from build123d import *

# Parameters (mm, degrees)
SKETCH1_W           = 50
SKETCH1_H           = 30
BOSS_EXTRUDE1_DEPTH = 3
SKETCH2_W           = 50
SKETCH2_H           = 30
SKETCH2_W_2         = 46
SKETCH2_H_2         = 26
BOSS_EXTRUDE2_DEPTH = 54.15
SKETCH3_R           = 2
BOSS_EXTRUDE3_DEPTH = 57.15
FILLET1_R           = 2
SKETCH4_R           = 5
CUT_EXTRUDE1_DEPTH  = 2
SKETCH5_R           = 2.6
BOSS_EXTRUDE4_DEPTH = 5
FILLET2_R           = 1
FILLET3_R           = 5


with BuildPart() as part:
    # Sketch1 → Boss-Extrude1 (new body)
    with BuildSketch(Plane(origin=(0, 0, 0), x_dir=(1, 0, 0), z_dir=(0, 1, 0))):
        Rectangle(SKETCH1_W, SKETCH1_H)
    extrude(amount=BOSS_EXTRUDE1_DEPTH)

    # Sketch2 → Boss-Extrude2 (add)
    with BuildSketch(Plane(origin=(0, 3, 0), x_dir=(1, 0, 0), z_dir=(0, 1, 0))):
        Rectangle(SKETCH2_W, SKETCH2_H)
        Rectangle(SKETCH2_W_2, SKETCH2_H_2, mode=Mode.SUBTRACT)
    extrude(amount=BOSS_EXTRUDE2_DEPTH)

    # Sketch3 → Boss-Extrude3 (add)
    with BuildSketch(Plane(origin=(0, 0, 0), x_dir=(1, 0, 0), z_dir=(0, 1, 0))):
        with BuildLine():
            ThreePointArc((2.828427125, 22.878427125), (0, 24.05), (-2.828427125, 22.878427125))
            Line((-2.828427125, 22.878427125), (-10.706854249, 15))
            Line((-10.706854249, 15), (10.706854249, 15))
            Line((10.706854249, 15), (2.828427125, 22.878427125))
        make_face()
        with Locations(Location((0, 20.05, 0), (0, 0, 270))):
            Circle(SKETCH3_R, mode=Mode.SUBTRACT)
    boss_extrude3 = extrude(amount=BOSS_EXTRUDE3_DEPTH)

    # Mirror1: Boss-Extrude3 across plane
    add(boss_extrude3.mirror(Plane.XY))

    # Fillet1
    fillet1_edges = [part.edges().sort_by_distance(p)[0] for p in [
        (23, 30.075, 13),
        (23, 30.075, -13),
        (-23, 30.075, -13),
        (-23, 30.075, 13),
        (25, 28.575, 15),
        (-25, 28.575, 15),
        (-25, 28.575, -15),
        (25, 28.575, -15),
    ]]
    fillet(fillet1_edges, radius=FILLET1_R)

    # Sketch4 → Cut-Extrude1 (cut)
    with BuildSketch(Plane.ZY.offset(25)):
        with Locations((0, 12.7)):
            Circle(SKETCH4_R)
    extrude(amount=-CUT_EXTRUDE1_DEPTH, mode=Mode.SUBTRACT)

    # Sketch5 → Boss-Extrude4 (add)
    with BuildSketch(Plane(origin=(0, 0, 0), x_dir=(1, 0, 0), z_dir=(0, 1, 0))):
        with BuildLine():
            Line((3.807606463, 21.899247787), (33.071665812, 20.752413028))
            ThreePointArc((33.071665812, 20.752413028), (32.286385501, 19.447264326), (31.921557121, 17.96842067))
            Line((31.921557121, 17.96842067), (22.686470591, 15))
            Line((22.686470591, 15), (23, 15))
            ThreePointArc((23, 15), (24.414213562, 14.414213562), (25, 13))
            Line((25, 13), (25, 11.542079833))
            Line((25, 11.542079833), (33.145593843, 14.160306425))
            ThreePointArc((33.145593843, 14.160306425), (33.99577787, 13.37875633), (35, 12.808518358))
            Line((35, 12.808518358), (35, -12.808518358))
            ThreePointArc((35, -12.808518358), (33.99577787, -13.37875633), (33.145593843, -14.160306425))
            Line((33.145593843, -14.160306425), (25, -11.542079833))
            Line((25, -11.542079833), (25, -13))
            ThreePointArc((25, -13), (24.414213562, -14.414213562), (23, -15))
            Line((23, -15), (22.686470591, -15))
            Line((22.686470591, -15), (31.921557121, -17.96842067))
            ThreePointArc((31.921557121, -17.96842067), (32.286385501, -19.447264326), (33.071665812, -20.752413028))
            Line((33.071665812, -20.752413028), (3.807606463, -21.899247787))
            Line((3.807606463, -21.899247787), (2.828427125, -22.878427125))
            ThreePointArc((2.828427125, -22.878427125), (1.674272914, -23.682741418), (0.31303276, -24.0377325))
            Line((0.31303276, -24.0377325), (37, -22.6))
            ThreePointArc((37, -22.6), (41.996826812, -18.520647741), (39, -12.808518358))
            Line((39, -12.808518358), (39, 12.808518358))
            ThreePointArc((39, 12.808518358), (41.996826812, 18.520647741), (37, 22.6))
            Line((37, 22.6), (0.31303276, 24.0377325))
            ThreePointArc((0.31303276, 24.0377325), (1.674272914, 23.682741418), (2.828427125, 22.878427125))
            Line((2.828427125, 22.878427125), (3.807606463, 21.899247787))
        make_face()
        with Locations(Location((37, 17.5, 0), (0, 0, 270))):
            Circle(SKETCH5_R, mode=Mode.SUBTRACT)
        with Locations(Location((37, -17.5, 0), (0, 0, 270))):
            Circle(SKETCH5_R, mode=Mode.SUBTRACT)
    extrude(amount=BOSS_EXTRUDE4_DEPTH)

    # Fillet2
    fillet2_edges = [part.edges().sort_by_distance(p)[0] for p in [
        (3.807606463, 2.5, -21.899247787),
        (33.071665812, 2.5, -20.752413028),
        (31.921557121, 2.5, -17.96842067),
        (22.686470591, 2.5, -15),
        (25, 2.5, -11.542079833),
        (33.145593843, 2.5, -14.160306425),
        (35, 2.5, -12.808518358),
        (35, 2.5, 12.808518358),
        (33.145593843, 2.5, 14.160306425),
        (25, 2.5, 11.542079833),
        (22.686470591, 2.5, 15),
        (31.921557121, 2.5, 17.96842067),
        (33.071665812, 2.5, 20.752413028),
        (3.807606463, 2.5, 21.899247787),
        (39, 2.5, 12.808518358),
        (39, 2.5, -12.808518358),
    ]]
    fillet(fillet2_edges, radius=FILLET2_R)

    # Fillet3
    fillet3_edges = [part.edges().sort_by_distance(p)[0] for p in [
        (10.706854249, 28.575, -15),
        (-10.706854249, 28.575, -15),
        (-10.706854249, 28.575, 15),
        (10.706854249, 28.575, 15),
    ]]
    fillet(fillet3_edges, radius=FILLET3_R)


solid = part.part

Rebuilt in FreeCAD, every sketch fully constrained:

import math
import FreeCAD as App
import Part
import Sketcher
Q = App.Units.Quantity


def edges_at(feature, points):
    """Names of the edges that pass closest to the given points."""
    edges = feature.Shape.Edges
    near = lambda p: min(range(len(edges)), key=lambda i: edges[i].distToShape(Part.Vertex(*p))[0])
    return sorted({f"Edge{near(p) + 1}" for p in points})


def add_polygon(sketch, points):
    """Adds a closed chain of lines whose ends are joined by coincident constraints."""
    first, n = sketch.GeometryCount, len(points)
    for a, b in zip(points, points[1:] + points[:1]):
        sketch.addGeometry(Part.LineSegment(App.Vector(*a, 0), App.Vector(*b, 0)), False)
    for i in range(n):
        sketch.addConstraint(Sketcher.Constraint("Coincident", first + i, 2, first + (i + 1) % n, 1))

doc = App.newDocument("Part")
body = doc.addObject("PartDesign::Body", "Body")

# Sketch on XZ plane
sketch1 = body.newObject("Sketcher::SketchObject", "Sketch")
sketch1.AttachmentSupport = (doc.getObject("XZ_Plane"), [""])
sketch1.MapMode = "FlatFace"
add_polygon(sketch1, [(-25, -15), (-25, 15), (25, 15), (25, -15)])  # lines 0-3
sketch1.addConstraint([
    Sketcher.Constraint("Vertical", 0),
    Sketcher.Constraint("Horizontal", 1),
    Sketcher.Constraint("Vertical", 2),
    Sketcher.Constraint("Horizontal", 3),
    Sketcher.Constraint("Symmetric", 0, 2, 2, 2, -1, 1),
    Sketcher.Constraint("DistanceX", 1, 1, 1, 2, Q("50 mm")),
    Sketcher.Constraint("DistanceY", 0, 1, 0, 2, Q("30 mm")),
])
pad1 = body.newObject("PartDesign::Pad", "Pad")
pad1.Profile = sketch1
pad1.Length = 3
pad1.Reversed = True

# Sketch on XZ plane
sketch2 = body.newObject("Sketcher::SketchObject", "Sketch001")
sketch2.AttachmentSupport = (doc.getObject("XZ_Plane"), [""])
sketch2.MapMode = "FlatFace"
sketch2.AttachmentOffset = App.Placement(App.Vector(0, 0, -3), App.Rotation())
add_polygon(sketch2, [(-25, -15), (-25, 15), (25, 15), (25, -15)])  # lines 0-3
add_polygon(sketch2, [(23, 13), (-23, 13), (-23, -13), (23, -13)])  # lines 4-7
sketch2.addConstraint([
    Sketcher.Constraint("Vertical", 0),
    Sketcher.Constraint("Horizontal", 1),
    Sketcher.Constraint("Vertical", 2),
    Sketcher.Constraint("Horizontal", 3),
    Sketcher.Constraint("Horizontal", 4),
    Sketcher.Constraint("Vertical", 5),
    Sketcher.Constraint("Horizontal", 6),
    Sketcher.Constraint("Vertical", 7),
    Sketcher.Constraint("Symmetric", 0, 2, 2, 2, -1, 1),
    Sketcher.Constraint("Symmetric", 4, 2, 6, 2, -1, 1),
    Sketcher.Constraint("DistanceX", 1, 1, 1, 2, Q("50 mm")),
    Sketcher.Constraint("DistanceX", 4, 2, 4, 1, Q("46 mm")),
    Sketcher.Constraint("DistanceY", 0, 1, 0, 2, Q("30 mm")),
    Sketcher.Constraint("DistanceY", 5, 2, 5, 1, Q("26 mm")),
])
pad2 = body.newObject("PartDesign::Pad", "Pad001")
pad2.Profile = sketch2
pad2.Length = 54.15
pad2.Reversed = True

# Sketch on XZ plane
sketch3 = body.newObject("Sketcher::SketchObject", "Sketch002")
sketch3.AttachmentSupport = (doc.getObject("XZ_Plane"), [""])
sketch3.MapMode = "FlatFace"
sketch3.addGeometry([
    Part.ArcOfCircle(Part.Circle(App.Vector(0, -20, 0), App.Vector(0, 0, 1), 4), math.radians(-135), math.radians(-45)),  # 0
    Part.LineSegment(App.Vector(-2.8, -22.9, 0), App.Vector(-10.7, -15, 0)),  # 1
    Part.LineSegment(App.Vector(-10.7, -15, 0), App.Vector(10.7, -15, 0)),  # 2
    Part.LineSegment(App.Vector(10.7, -15, 0), App.Vector(2.8, -22.9, 0)),  # 3
    Part.Circle(App.Vector(0, -20.1, 0), App.Vector(0, 0, 1), 2),  # 4
], False)
sketch3.addConstraint([
    Sketcher.Constraint("Tangent", 0, 1, 1, 1),
    Sketcher.Constraint("Coincident", 1, 2, 2, 1),
    Sketcher.Constraint("Coincident", 2, 2, 3, 1),
    Sketcher.Constraint("Tangent", 3, 2, 0, 2),
    Sketcher.Constraint("Horizontal", 2),
    Sketcher.Constraint("Coincident", 4, 3, 0, 3),
    Sketcher.Constraint("Symmetric", 0, 1, 3, 2, -2),
    Sketcher.Constraint("Perpendicular", 1, 3),
    Sketcher.Constraint("Diameter", 4, Q("4 mm")),
    Sketcher.Constraint("Radius", 0, Q("4 mm")),
    Sketcher.Constraint("DistanceY", 1, 2, -1, 1, Q("15 mm")),
    Sketcher.Constraint("DistanceY", 0, 3, -1, 1, Q("20.05 mm")),
])
pad3 = body.newObject("PartDesign::Pad", "Pad002")
pad3.Profile = sketch3
pad3.Length = 57.15
pad3.Reversed = True
doc.recompute()

mirrored = body.newObject("PartDesign::Mirrored", "Mirrored")
mirrored.Originals = [pad3]
mirrored.MirrorPlane = (doc.getObject("XY_Plane"), [""])
body.Tip = mirrored
doc.recompute()

fillet = body.newObject("PartDesign::Fillet", "Fillet")
fillet.Base = (mirrored, edges_at(mirrored, [
    (23, 30.075, 13),
    (23, 30.075, -13),
    (-23, 30.075, -13),
    (-23, 30.075, 13),
    (25, 28.575, 15),
    (-25, 28.575, 15),
    (-25, 28.575, -15),
    (25, 28.575, -15),
]))
fillet.Radius = 2

# Sketch on YZ plane
sketch4 = body.newObject("Sketcher::SketchObject", "Sketch003")
sketch4.AttachmentSupport = (doc.getObject("YZ_Plane"), [""])
sketch4.MapMode = "FlatFace"
sketch4.AttachmentOffset = App.Placement(App.Vector(0, 0, -25), App.Rotation())
sketch4.addGeometry(Part.Circle(App.Vector(13, 0, 0), App.Vector(0, 0, 1), 5), False)
sketch4.addConstraint([
    Sketcher.Constraint("PointOnObject", 0, 3, -1),
    Sketcher.Constraint("Diameter", 0, Q("10 mm")),
    Sketcher.Constraint("DistanceX", -1, 1, 0, 3, Q("12.7 mm")),
])
pocket1 = body.newObject("PartDesign::Pocket", "Pocket")
pocket1.Profile = sketch4
pocket1.Length = 2
pocket1.Reversed = True

# Sketch on XZ plane
sketch5 = body.newObject("Sketcher::SketchObject", "Sketch004")
sketch5.AttachmentSupport = (doc.getObject("XZ_Plane"), [""])
sketch5.MapMode = "FlatFace"
sketch5.addGeometry([
    Part.LineSegment(App.Vector(3.81, -21.9, 0), App.Vector(33.07, -20.75, 0)),  # 0
    Part.ArcOfCircle(Part.Circle(App.Vector(37, -17.5, 0), App.Vector(0, 0, 1), 5.1), math.radians(-175), math.radians(-140)),  # 1
    Part.LineSegment(App.Vector(31.92, -17.97, 0), App.Vector(22.69, -15, 0)),  # 2
    Part.LineSegment(App.Vector(22.69, -15, 0), App.Vector(23, -15, 0)),  # 3
    Part.ArcOfCircle(Part.Circle(App.Vector(23, -13, 0), App.Vector(0, 0, 1), 2), math.radians(-90), math.radians(0)),  # 4
    Part.LineSegment(App.Vector(25, -13, 0), App.Vector(25, -11.54, 0)),  # 5
    Part.LineSegment(App.Vector(25, -11.54, 0), App.Vector(33.15, -14.16, 0)),  # 6
    Part.ArcOfCircle(Part.Circle(App.Vector(37, -17.5, 0), App.Vector(0, 0, 1), 5.1), math.radians(113), math.radians(139)),  # 7
    Part.LineSegment(App.Vector(35, -12.81, 0), App.Vector(35, 12.81, 0)),  # 8
    Part.ArcOfCircle(Part.Circle(App.Vector(37, 17.5, 0), App.Vector(0, 0, 1), 5.1), math.radians(-139), math.radians(-113)),  # 9
    Part.LineSegment(App.Vector(33.15, 14.16, 0), App.Vector(25, 11.54, 0)),  # 10
    Part.LineSegment(App.Vector(25, 11.54, 0), App.Vector(25, 13, 0)),  # 11
    Part.ArcOfCircle(Part.Circle(App.Vector(23, 13, 0), App.Vector(0, 0, 1), 2), math.radians(0), math.radians(90)),  # 12
    Part.LineSegment(App.Vector(23, 15, 0), App.Vector(22.69, 15, 0)),  # 13
    Part.LineSegment(App.Vector(22.69, 15, 0), App.Vector(31.92, 17.97, 0)),  # 14
    Part.ArcOfCircle(Part.Circle(App.Vector(37, 17.5, 0), App.Vector(0, 0, 1), 5.1), math.radians(140), math.radians(175)),  # 15
    Part.LineSegment(App.Vector(33.07, 20.75, 0), App.Vector(3.81, 21.9, 0)),  # 16
    Part.LineSegment(App.Vector(3.81, 21.9, 0), App.Vector(2.83, 22.88, 0)),  # 17
    Part.ArcOfCircle(Part.Circle(App.Vector(0, 20.05, 0), App.Vector(0, 0, 1), 4), math.radians(45), math.radians(86)),  # 18
    Part.LineSegment(App.Vector(0.31, 24.04, 0), App.Vector(37, 22.6, 0)),  # 19
    Part.ArcOfCircle(Part.Circle(App.Vector(37, 17.5, 0), App.Vector(0, 0, 1), 5.1), math.radians(-67), math.radians(90)),  # 20
    Part.LineSegment(App.Vector(39, 12.81, 0), App.Vector(39, -12.81, 0)),  # 21
    Part.ArcOfCircle(Part.Circle(App.Vector(37, -17.5, 0), App.Vector(0, 0, 1), 5.1), math.radians(-90), math.radians(67)),  # 22
    Part.LineSegment(App.Vector(37, -22.6, 0), App.Vector(0.31, -24.04, 0)),  # 23
    Part.ArcOfCircle(Part.Circle(App.Vector(0, -20.05, 0), App.Vector(0, 0, 1), 4), math.radians(-86), math.radians(-45)),  # 24
    Part.LineSegment(App.Vector(2.83, -22.88, 0), App.Vector(3.81, -21.9, 0)),  # 25
    Part.Circle(App.Vector(37, 17.5, 0), App.Vector(0, 0, 1), 2.6),  # 26
    Part.Circle(App.Vector(37, -17.5, 0), App.Vector(0, 0, 1), 2.6),  # 27
], False)
sketch5.addConstraint([
    Sketcher.Constraint("Coincident", 0, 2, 1, 2),
    Sketcher.Constraint("Coincident", 1, 1, 2, 1),
    Sketcher.Constraint("Coincident", 2, 2, 3, 1),
    Sketcher.Constraint("Tangent", 3, 2, 4, 1),
    Sketcher.Constraint("Tangent", 4, 2, 5, 1),
    Sketcher.Constraint("Coincident", 5, 2, 6, 1),
    Sketcher.Constraint("Coincident", 6, 2, 7, 2),
    Sketcher.Constraint("Coincident", 7, 1, 8, 1),
    Sketcher.Constraint("Coincident", 8, 2, 9, 2),
    Sketcher.Constraint("Coincident", 9, 1, 10, 1),
    Sketcher.Constraint("Coincident", 10, 2, 11, 1),
    Sketcher.Constraint("Tangent", 11, 2, 12, 1),
    Sketcher.Constraint("Tangent", 12, 2, 13, 1),
    Sketcher.Constraint("Coincident", 13, 2, 14, 1),
    Sketcher.Constraint("Coincident", 14, 2, 15, 2),
    Sketcher.Constraint("Coincident", 15, 1, 16, 1),
    Sketcher.Constraint("Coincident", 16, 2, 17, 1),
    Sketcher.Constraint("Tangent", 17, 2, 18, 1),
    Sketcher.Constraint("Coincident", 18, 2, 19, 1),
    Sketcher.Constraint("Coincident", 19, 2, 20, 2),
    Sketcher.Constraint("Coincident", 20, 1, 21, 1),
    Sketcher.Constraint("Coincident", 21, 2, 22, 2),
    Sketcher.Constraint("Coincident", 22, 1, 23, 1),
    Sketcher.Constraint("Coincident", 23, 2, 24, 1),
    Sketcher.Constraint("Tangent", 24, 2, 25, 1),
    Sketcher.Constraint("Coincident", 25, 2, 0, 1),
    Sketcher.Constraint("Horizontal", 3),
    Sketcher.Constraint("Vertical", 5),
    Sketcher.Constraint("Vertical", 8),
    Sketcher.Constraint("Vertical", 11),
    Sketcher.Constraint("Horizontal", 13),
    Sketcher.Constraint("Vertical", 21),
    Sketcher.Constraint("Coincident", 7, 3, 1, 3),
    Sketcher.Constraint("Coincident", 15, 3, 9, 3),
    Sketcher.Constraint("Coincident", 20, 3, 9, 3),
    Sketcher.Constraint("Coincident", 22, 3, 1, 3),
    Sketcher.Constraint("Coincident", 26, 3, 9, 3),
    Sketcher.Constraint("Coincident", 27, 3, 1, 3),
    Sketcher.Constraint("Equal", 1, 7),
    Sketcher.Constraint("Equal", 7, 9),
    Sketcher.Constraint("Equal", 4, 12),
    Sketcher.Constraint("Equal", 9, 15),
    Sketcher.Constraint("Equal", 15, 20),
    Sketcher.Constraint("Equal", 20, 22),
    Sketcher.Constraint("Equal", 18, 24),
    Sketcher.Constraint("Equal", 26, 27),
    Sketcher.Constraint("Symmetric", 18, 3, 24, 3, -1, 1),
    Sketcher.Constraint("Symmetric", 1, 3, 9, 3, -1),
    Sketcher.Constraint("Symmetric", 4, 3, 12, 3, -1),
    Sketcher.Constraint("Symmetric", 18, 2, 23, 2, -1),
    Sketcher.Constraint("Symmetric", 16, 2, 25, 2, -1),
    Sketcher.Constraint("Parallel", 2, 6),
    Sketcher.Constraint("Parallel", 10, 14),
    Sketcher.Constraint("Parallel", 16, 19),
    Sketcher.Constraint("Parallel", 0, 23),
    Sketcher.Constraint("Perpendicular", 17, 25),
    Sketcher.Constraint("Horizontal", 8, 2, 20, 1),
    Sketcher.Constraint("Vertical", 6, 2, 9, 1),
    Sketcher.Constraint("Vertical", 2, 2, 13, 2),
    Sketcher.Constraint("Vertical", 1, 1, 14, 2),
    Sketcher.Constraint("Vertical", 0, 2, 15, 1),
    Sketcher.Constraint("Vertical", 27, 3, 19, 2),
    Sketcher.Constraint("Radius", 4, Q("2 mm")),
    Sketcher.Constraint("Radius", 18, Q("4 mm")),
    Sketcher.Constraint("Diameter", 26, Q("5.2 mm")),
    Sketcher.Constraint("Radius", 1, Q("5.1 mm")),
    Sketcher.Constraint("DistanceX", -1, 1, 1, 3, Q("37 mm")),
    Sketcher.Constraint("DistanceX", -1, 1, 4, 3, Q("23 mm")),
    Sketcher.Constraint("DistanceY", 4, 3, -1, 1, Q("13 mm")),
    Sketcher.Constraint("DistanceX", -1, 1, 7, 1, Q("35 mm")),
    Sketcher.Constraint("DistanceY", 1, 3, 9, 3, Q("35 mm")),
    Sketcher.Constraint("DistanceY", 24, 3, 18, 3, Q("40.1 mm")),
    Sketcher.Constraint("DistanceX", 3, 1, 3, 2, Q("0.313529 mm")),
    Sketcher.Constraint("DistanceY", 5, 1, 5, 2, Q("1.45792 mm")),
    Sketcher.Constraint("Distance", 2, Q("9.70043 mm")),
    Sketcher.Constraint("Distance", 17, Q("1.384769 mm")),
    Sketcher.Constraint("Distance", 19, Q("36.715128 mm")),
])
pad4 = body.newObject("PartDesign::Pad", "Pad003")
pad4.Profile = sketch5
pad4.Length = 5
pad4.Reversed = True
doc.recompute()

fillet2 = body.newObject("PartDesign::Fillet", "Fillet001")
fillet2.Base = (pad4, edges_at(pad4, [
    (3.808, 2.5, -21.899),
    (33.072, 2.5, -20.752),
    (31.922, 2.5, -17.968),
    (22.686, 2.5, -15),
    (25, 2.5, -11.542),
    (33.146, 2.5, -14.16),
    (35, 2.5, -12.809),
    (35, 2.5, 12.809),
    (33.146, 2.5, 14.16),
    (25, 2.5, 11.542),
    (22.686, 2.5, 15),
    (31.922, 2.5, 17.968),
    (33.072, 2.5, 20.752),
    (3.808, 2.5, 21.899),
    (39, 2.5, 12.809),
    (39, 2.5, -12.809),
]))
fillet2.Radius = 1
doc.recompute()

fillet3 = body.newObject("PartDesign::Fillet", "Fillet002")
fillet3.Base = (fillet2, edges_at(fillet2, [
    (10.707, 28.575, -15),
    (-10.707, 28.575, -15),
    (-10.707, 28.575, 15),
    (10.707, 28.575, 15),
]))
fillet3.Radius = 5

doc.recompute()
